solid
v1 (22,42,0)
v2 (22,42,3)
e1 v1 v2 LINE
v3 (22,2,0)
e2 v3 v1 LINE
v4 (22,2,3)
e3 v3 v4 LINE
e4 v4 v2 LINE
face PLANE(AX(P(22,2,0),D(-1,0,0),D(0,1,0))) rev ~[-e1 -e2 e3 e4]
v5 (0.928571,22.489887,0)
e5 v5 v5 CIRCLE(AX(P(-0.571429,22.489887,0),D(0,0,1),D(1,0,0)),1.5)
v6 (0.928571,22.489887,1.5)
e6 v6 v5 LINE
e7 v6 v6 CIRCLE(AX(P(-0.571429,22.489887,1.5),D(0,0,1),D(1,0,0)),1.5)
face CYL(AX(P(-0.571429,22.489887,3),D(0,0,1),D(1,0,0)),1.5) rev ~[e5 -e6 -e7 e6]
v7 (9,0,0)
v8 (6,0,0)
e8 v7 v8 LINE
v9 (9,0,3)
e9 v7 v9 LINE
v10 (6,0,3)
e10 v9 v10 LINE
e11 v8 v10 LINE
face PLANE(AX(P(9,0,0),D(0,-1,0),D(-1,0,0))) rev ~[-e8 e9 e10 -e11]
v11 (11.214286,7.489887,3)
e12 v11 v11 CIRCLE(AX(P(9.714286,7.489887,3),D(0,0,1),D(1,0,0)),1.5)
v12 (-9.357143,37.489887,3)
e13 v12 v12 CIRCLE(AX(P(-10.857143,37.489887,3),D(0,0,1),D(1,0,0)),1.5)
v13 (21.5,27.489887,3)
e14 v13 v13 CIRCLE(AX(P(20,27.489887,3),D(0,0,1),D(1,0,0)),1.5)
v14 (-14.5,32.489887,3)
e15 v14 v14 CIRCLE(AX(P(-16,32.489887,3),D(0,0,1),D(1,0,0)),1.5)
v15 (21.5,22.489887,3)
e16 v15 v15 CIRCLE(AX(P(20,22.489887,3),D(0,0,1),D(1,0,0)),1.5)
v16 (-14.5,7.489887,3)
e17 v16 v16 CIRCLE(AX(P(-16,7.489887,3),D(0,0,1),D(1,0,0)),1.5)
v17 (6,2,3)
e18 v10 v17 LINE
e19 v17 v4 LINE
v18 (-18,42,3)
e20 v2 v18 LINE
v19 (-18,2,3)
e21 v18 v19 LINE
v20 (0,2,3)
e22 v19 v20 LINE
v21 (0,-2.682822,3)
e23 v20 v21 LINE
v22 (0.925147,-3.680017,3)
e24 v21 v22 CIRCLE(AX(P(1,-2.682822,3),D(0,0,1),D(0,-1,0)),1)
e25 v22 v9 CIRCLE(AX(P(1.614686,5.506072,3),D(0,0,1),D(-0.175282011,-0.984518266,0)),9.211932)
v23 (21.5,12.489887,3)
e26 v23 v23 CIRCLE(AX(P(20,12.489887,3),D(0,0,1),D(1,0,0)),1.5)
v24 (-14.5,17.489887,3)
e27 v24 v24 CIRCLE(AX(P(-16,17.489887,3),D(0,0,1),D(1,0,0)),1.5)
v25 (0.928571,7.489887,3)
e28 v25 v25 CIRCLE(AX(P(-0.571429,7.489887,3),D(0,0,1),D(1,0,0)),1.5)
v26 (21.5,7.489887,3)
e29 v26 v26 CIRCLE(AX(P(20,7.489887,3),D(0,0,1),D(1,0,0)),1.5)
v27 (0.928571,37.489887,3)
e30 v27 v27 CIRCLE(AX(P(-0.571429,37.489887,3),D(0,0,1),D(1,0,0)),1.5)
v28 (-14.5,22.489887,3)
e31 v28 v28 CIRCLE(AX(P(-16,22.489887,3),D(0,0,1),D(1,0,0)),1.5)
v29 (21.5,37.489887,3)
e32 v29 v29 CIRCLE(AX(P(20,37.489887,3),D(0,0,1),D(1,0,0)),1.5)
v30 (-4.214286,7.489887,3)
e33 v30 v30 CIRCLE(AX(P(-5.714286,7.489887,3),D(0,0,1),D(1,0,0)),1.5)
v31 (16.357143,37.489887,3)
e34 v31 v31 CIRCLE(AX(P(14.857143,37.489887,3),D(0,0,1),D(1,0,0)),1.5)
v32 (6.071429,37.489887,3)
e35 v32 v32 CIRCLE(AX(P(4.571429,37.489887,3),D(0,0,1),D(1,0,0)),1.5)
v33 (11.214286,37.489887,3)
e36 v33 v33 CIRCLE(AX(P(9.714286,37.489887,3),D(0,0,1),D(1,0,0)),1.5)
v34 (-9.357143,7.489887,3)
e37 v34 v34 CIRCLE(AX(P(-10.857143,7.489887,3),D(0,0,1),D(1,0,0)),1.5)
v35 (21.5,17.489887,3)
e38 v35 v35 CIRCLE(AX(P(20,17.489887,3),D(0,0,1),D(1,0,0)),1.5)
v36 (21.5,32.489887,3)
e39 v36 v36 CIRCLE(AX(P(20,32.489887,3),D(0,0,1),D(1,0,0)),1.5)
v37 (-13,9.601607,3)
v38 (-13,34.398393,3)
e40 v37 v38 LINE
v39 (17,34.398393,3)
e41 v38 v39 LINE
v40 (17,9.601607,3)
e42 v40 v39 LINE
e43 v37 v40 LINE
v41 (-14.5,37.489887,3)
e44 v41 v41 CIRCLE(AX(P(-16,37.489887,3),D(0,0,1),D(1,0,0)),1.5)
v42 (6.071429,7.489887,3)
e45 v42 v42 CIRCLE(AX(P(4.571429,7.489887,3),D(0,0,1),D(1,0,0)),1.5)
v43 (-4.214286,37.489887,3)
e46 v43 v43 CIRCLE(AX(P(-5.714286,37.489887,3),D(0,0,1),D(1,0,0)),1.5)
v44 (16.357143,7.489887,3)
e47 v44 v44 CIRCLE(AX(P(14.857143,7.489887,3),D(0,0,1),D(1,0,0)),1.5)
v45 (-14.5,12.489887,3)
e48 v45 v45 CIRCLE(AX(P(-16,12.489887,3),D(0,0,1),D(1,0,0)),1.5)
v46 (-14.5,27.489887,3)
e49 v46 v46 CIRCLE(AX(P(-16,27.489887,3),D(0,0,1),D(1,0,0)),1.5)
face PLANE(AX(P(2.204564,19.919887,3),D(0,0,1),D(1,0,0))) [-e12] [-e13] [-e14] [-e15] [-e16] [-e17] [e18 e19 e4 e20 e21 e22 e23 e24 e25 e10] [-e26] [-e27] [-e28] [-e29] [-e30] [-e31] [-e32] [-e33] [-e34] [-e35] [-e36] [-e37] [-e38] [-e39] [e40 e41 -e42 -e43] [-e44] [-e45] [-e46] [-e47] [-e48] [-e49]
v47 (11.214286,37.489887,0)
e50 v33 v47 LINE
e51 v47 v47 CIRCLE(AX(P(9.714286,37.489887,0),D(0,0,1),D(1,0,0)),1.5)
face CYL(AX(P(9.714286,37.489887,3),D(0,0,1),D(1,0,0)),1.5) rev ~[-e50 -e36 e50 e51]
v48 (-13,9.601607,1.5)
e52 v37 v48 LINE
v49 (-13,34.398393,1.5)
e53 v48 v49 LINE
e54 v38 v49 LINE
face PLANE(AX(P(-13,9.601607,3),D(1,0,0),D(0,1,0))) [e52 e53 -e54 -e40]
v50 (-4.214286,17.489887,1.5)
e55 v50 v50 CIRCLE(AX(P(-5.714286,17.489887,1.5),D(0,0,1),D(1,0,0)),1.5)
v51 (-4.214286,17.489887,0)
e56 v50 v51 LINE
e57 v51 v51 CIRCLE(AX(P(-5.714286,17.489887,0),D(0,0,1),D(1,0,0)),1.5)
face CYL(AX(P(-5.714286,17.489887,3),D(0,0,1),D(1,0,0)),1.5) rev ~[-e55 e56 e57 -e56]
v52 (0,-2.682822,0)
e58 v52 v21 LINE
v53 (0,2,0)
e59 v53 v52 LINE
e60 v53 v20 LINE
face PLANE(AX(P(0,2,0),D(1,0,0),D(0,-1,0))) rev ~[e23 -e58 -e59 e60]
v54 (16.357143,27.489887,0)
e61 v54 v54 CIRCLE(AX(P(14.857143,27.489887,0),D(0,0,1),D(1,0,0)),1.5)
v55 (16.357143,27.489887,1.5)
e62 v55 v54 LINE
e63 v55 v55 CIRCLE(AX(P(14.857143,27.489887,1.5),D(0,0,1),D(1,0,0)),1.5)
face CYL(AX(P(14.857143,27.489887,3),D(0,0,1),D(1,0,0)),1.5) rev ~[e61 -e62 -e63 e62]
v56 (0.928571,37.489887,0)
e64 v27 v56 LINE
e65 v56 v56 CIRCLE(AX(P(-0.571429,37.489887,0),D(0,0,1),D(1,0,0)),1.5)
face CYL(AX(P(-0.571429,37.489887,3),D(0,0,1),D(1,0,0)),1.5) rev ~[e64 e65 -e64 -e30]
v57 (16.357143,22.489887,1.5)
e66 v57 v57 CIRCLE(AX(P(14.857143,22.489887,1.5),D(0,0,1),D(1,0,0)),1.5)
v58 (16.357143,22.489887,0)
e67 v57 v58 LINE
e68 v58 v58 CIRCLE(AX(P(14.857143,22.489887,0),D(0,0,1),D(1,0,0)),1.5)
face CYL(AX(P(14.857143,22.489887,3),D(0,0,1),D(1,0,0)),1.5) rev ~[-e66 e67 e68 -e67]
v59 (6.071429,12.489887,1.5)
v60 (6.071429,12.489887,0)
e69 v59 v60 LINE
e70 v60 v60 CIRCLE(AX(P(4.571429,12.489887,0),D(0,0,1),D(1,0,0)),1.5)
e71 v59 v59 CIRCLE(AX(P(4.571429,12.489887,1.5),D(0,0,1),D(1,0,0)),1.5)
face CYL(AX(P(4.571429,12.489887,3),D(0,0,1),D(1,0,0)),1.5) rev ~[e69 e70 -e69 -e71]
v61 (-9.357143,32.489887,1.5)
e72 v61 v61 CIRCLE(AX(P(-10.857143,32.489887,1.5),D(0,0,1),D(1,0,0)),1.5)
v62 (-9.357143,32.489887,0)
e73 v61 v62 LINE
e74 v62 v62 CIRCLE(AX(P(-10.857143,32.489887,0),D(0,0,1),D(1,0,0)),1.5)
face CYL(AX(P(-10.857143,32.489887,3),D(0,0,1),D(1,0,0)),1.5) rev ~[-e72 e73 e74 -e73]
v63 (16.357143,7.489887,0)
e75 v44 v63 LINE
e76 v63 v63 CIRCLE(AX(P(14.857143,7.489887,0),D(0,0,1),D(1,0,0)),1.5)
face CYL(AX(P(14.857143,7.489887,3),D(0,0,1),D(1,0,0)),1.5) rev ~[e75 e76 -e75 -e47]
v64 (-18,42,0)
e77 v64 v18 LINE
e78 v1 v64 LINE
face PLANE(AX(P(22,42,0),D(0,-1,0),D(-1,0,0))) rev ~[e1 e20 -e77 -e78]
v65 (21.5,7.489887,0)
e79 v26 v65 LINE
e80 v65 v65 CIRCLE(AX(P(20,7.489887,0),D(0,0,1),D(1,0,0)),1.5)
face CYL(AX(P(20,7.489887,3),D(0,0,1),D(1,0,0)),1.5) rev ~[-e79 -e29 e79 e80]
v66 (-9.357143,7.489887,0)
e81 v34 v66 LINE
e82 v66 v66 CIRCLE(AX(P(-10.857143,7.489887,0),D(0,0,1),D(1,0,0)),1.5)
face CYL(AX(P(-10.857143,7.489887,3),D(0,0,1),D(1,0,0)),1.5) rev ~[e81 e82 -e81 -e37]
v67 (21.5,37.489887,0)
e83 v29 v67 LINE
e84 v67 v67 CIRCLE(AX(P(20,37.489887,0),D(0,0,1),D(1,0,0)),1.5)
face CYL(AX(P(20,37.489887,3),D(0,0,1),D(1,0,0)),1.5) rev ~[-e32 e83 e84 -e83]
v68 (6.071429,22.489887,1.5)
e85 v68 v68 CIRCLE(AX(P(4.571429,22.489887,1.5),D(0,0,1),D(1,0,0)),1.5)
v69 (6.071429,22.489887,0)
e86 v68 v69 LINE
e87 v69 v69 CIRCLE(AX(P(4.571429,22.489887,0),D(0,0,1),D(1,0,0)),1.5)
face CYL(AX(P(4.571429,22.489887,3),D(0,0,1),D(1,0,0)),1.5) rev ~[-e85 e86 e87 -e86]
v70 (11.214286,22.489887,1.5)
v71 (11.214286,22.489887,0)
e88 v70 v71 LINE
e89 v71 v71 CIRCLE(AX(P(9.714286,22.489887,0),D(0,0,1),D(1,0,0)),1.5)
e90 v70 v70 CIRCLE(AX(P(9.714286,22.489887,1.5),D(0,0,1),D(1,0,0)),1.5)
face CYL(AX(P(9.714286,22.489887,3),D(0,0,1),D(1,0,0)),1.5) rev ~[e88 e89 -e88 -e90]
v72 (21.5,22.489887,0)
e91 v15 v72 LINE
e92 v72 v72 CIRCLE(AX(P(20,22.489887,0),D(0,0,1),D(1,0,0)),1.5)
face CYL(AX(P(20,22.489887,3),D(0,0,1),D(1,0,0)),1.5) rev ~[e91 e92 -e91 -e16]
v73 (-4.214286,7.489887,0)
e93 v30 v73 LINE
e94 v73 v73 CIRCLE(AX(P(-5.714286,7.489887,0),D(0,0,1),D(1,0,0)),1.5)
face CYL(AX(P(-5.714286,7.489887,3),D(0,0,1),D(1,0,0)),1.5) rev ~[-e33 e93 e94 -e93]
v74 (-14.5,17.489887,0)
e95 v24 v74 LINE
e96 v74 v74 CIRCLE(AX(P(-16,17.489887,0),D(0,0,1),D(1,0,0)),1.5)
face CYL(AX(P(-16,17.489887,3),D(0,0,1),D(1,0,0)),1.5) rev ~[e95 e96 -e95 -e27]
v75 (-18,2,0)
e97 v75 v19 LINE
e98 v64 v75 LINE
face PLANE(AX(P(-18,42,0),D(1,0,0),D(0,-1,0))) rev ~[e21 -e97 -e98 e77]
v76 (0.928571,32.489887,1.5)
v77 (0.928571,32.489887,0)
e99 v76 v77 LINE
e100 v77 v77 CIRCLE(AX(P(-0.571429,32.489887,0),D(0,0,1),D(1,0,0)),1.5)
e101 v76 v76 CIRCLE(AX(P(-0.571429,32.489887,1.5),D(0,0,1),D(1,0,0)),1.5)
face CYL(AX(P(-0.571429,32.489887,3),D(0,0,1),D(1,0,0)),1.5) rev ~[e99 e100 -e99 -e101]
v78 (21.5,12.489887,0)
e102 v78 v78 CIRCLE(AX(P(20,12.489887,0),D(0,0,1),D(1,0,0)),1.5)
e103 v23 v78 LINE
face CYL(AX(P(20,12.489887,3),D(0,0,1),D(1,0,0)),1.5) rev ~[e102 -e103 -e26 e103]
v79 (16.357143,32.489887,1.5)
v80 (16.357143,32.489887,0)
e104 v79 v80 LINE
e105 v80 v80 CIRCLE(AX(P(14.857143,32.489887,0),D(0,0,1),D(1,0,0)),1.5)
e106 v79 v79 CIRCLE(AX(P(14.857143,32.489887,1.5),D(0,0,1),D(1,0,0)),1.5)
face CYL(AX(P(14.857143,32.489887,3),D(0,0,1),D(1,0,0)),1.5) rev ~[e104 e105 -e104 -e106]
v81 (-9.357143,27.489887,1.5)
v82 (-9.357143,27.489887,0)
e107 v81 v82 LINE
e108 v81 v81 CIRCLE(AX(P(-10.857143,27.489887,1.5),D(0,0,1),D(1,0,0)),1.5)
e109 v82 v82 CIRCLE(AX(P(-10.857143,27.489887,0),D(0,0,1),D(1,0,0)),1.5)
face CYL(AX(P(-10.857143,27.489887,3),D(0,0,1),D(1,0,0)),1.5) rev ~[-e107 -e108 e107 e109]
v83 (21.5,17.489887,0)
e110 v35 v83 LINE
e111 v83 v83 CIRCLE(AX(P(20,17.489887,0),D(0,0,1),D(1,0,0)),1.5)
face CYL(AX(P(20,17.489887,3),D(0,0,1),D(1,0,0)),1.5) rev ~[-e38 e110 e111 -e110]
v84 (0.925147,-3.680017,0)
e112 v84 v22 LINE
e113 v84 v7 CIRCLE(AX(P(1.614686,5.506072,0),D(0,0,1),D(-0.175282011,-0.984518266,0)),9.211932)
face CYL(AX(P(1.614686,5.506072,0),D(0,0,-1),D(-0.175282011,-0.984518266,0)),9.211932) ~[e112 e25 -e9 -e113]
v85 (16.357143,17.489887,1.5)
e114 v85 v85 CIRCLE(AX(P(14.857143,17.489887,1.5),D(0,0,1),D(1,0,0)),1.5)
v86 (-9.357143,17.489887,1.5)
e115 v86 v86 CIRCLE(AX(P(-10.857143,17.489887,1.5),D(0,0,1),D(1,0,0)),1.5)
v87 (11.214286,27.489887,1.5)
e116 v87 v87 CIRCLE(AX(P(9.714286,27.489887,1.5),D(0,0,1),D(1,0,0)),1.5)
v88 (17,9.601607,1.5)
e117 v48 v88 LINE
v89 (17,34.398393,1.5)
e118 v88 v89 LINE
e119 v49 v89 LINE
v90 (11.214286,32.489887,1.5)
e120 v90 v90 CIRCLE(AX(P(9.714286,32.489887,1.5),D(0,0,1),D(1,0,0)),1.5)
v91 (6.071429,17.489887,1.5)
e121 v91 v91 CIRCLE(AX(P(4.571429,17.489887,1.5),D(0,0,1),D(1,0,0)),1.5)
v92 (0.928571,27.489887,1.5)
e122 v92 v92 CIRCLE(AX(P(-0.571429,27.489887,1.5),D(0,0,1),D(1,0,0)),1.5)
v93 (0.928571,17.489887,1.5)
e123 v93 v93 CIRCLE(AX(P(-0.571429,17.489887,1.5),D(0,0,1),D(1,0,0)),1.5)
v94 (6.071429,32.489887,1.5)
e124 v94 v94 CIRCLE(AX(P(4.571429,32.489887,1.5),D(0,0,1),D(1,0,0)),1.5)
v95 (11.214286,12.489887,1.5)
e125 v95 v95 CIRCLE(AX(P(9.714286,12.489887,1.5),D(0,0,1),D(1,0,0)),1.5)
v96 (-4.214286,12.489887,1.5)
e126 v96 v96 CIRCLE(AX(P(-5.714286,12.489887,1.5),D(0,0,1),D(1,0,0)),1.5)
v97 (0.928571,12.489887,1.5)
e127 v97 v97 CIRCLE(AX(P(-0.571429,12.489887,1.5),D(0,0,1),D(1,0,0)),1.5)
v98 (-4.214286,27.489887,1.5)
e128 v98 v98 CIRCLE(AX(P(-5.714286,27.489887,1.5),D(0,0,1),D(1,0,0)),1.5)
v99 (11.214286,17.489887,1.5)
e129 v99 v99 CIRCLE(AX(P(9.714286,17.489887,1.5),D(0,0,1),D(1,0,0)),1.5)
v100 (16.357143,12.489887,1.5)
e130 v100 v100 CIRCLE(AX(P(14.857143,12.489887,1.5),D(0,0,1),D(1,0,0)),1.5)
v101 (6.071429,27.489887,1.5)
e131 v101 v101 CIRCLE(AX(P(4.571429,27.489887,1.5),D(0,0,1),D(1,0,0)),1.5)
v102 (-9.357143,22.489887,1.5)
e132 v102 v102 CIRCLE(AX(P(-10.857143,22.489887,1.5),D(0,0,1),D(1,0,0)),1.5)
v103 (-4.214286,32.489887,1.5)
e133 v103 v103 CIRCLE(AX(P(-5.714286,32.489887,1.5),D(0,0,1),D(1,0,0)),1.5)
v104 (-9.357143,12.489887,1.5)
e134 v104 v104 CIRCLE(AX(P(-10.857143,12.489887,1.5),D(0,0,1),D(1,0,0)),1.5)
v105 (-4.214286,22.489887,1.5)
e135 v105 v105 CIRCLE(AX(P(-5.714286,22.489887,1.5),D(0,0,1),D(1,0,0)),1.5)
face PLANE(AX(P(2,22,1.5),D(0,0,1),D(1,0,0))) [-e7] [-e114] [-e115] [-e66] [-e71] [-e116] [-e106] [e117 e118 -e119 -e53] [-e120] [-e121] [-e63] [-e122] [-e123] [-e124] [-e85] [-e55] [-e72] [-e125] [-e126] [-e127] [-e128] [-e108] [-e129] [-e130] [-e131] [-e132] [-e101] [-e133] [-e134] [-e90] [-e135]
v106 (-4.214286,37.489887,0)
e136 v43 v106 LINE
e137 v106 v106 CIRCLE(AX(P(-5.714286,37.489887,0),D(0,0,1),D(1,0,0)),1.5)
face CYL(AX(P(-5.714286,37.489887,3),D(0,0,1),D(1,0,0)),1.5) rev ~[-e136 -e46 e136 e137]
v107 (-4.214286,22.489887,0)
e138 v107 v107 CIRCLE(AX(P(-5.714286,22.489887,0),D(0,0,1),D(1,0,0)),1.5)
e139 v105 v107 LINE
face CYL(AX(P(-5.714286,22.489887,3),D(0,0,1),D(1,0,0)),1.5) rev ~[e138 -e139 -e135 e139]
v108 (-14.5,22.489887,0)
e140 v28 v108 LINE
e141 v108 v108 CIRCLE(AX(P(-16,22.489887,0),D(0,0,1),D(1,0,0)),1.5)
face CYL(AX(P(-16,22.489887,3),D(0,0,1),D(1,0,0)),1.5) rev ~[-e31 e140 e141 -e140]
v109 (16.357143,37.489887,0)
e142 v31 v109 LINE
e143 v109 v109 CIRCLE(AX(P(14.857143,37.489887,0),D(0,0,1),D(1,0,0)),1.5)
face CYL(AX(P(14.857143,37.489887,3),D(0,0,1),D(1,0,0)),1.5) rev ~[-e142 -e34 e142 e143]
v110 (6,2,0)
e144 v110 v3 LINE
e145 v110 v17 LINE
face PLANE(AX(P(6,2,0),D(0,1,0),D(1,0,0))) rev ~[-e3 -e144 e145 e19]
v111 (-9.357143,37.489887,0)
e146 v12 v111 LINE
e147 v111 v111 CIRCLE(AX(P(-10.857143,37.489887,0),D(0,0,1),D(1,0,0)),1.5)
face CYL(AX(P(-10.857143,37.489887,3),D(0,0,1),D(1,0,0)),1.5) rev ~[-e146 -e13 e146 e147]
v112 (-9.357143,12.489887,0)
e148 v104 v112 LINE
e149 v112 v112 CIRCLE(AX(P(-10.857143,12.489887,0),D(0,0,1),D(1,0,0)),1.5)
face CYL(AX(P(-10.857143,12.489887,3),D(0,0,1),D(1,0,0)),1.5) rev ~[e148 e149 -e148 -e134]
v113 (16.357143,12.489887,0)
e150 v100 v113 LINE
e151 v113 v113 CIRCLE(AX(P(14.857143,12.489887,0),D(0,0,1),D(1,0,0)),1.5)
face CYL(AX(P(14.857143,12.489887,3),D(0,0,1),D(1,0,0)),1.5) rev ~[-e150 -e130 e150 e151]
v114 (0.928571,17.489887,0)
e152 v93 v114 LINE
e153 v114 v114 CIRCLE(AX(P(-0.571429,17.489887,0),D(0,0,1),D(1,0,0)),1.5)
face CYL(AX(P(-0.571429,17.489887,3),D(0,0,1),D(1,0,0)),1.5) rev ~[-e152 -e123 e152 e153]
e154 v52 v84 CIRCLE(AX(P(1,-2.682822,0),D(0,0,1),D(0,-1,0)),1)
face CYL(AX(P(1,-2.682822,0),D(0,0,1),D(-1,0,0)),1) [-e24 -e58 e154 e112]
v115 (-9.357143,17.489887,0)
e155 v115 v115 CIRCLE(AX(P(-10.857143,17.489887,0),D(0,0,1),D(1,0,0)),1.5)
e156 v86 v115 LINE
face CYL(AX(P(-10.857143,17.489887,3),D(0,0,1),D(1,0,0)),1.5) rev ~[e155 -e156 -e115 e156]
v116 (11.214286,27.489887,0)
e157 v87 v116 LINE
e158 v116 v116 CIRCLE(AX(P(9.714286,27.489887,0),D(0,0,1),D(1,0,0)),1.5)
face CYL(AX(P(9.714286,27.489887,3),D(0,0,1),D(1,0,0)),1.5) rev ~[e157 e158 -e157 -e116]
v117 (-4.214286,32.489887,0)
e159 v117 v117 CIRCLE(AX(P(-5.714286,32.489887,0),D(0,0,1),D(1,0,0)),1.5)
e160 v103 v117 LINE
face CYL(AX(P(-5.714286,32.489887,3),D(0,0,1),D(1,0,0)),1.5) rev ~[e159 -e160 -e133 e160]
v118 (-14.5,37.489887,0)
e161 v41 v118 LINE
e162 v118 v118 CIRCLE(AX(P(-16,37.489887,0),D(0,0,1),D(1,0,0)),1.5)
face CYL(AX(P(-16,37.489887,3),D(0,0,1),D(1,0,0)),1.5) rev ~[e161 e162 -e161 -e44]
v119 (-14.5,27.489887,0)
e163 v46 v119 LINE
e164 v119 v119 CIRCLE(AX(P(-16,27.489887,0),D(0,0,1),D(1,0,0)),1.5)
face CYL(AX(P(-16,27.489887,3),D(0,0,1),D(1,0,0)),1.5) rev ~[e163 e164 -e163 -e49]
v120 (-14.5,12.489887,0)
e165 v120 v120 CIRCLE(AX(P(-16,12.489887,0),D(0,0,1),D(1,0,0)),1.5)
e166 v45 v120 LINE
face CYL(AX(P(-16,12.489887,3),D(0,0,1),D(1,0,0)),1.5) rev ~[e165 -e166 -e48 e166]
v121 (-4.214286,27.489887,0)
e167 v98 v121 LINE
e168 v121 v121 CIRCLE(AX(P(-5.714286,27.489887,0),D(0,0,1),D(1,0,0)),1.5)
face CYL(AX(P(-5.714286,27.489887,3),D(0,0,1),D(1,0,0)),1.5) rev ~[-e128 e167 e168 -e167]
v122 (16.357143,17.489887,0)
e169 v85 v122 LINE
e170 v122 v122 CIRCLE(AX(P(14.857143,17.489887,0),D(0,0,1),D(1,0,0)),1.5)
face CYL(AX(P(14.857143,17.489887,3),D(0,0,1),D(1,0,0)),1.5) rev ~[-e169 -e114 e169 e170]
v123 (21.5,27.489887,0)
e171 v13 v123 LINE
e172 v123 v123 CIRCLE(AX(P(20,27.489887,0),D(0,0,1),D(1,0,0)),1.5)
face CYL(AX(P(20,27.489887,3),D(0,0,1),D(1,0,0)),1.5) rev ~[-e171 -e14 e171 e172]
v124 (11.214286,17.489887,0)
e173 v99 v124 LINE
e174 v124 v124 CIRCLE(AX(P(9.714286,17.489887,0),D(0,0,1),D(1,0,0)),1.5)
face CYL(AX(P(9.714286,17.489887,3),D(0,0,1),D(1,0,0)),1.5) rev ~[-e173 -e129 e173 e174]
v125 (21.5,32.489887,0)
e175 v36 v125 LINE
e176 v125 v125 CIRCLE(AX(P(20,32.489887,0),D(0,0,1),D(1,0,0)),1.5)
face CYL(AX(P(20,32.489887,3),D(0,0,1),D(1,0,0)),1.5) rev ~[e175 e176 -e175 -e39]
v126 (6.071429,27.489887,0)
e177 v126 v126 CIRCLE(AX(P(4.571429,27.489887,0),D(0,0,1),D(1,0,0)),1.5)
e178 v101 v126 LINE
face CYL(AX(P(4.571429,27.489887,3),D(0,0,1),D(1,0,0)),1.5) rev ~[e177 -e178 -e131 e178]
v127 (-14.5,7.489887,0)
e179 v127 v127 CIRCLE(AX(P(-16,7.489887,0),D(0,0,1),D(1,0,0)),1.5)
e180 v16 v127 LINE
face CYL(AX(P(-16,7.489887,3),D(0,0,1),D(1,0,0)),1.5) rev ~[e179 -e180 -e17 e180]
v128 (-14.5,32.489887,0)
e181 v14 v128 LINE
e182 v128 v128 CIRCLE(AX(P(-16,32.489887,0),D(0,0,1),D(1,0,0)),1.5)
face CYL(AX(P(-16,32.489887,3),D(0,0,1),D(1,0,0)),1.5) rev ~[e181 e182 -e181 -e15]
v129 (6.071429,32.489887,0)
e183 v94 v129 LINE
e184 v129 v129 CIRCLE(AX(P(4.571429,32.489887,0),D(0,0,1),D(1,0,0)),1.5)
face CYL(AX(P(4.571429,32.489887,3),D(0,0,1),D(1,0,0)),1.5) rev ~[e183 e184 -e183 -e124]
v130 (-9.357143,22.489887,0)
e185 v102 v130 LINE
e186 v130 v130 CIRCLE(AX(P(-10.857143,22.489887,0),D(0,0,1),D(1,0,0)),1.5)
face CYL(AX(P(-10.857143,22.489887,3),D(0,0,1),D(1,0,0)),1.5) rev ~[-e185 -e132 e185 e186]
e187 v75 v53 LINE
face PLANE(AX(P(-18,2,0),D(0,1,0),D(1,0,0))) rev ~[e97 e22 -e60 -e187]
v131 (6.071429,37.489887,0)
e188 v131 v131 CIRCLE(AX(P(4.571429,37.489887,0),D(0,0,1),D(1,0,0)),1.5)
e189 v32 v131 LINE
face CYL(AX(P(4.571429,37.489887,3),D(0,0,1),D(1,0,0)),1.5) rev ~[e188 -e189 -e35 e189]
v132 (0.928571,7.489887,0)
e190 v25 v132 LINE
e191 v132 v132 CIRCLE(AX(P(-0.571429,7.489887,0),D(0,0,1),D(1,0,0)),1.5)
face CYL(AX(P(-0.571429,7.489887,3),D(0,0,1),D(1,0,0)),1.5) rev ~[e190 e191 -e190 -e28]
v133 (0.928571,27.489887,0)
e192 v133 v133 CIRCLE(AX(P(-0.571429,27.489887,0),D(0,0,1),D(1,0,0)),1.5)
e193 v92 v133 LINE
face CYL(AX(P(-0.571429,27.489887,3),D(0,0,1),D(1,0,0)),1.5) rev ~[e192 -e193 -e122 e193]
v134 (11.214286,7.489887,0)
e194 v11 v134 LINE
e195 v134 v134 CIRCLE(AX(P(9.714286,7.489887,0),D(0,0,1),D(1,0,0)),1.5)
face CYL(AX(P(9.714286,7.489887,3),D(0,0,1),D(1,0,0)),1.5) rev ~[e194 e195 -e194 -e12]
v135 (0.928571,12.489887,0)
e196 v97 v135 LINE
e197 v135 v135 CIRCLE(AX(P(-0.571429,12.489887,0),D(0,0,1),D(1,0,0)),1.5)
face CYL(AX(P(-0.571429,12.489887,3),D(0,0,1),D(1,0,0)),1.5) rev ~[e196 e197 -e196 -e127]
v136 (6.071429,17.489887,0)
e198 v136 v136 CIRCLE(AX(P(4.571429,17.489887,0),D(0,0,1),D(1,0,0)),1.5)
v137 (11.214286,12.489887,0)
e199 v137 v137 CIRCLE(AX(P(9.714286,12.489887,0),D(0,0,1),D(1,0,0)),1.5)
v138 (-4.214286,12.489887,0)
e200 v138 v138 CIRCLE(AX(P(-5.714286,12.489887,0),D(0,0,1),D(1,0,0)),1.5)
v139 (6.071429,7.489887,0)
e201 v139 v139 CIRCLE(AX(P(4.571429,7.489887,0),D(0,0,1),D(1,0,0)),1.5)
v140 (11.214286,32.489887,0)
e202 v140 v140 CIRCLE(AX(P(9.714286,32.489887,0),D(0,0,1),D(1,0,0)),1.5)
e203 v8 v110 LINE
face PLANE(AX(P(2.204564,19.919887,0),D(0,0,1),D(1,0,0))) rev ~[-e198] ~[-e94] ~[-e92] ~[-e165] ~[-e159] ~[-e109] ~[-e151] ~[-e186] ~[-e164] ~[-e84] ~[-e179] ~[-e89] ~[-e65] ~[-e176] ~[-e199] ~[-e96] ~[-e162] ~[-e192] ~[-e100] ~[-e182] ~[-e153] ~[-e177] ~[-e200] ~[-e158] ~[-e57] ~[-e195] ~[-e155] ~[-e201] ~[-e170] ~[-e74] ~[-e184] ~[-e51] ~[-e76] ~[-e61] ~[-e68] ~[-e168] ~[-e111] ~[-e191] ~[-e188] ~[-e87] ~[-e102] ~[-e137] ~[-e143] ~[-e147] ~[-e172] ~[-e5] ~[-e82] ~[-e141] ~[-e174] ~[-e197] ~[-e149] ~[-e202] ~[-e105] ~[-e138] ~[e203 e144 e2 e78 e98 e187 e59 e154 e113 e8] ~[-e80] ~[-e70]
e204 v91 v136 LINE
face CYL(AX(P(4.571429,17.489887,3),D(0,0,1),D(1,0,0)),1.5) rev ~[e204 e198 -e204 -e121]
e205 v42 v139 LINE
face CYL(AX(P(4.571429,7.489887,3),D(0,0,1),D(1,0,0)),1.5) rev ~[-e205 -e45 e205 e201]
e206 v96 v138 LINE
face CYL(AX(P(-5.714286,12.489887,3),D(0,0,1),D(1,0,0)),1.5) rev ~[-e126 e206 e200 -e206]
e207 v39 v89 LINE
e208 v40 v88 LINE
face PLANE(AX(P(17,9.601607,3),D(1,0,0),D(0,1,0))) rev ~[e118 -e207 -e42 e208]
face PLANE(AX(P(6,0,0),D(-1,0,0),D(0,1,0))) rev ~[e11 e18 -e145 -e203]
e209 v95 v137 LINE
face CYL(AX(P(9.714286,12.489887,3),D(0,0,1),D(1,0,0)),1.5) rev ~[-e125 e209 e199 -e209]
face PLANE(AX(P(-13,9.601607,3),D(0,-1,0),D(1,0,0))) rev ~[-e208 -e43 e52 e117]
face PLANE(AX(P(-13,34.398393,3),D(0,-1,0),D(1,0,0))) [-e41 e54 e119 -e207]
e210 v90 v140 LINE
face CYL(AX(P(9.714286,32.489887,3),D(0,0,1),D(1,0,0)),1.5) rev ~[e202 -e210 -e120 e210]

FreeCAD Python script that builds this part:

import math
import FreeCAD as App
import Part
import Sketcher


def edges_at(feature, points):
    """Names of the edges that pass closest to the given points."""
    edges = feature.Shape.Edges
    near = lambda p: min(range(len(edges)), key=lambda i: edges[i].distToShape(Part.Vertex(*p))[0])
    return sorted({f"Edge{near(p) + 1}" for p in points})

doc = App.newDocument("Part")
body = doc.addObject("PartDesign::Body", "Body")

# Sketch on XY plane
sketch1 = body.newObject("Sketcher::SketchObject", "Sketch")
sketch1.AttachmentSupport = (doc.getObject("XY_Plane"), [""])
sketch1.MapMode = "FlatFace"
sketch1.addGeometry(Part.LineSegment(App.Vector(-18, 2, 0), App.Vector(0, 2, 0)), False)
sketch1.addGeometry(Part.LineSegment(App.Vector(0, 2, 0), App.Vector(0, -3.6, 0)), False)
sketch1.addGeometry(Part.ArcOfCircle(Part.Circle(App.Vector(1.6, 5.5, 0), App.Vector(0, 0, 1), 9.2), math.radians(-100), math.radians(-37)), False)
sketch1.addGeometry(Part.LineSegment(App.Vector(9, 0, 0), App.Vector(6, 0, 0)), False)
sketch1.addGeometry(Part.LineSegment(App.Vector(6, 0, 0), App.Vector(6, 2, 0)), False)
sketch1.addGeometry(Part.LineSegment(App.Vector(6, 2, 0), App.Vector(22, 2, 0)), False)
sketch1.addGeometry(Part.LineSegment(App.Vector(22, 2, 0), App.Vector(22, 42, 0)), False)
sketch1.addGeometry(Part.LineSegment(App.Vector(22, 42, 0), App.Vector(-18, 42, 0)), False)
sketch1.addGeometry(Part.LineSegment(App.Vector(-18, 42, 0), App.Vector(-18, 2, 0)), False)
sketch1.addConstraint(Sketcher.Constraint("Coincident", 0, 2, 1, 1))
sketch1.addConstraint(Sketcher.Constraint("Coincident", 1, 2, 2, 1))
sketch1.addConstraint(Sketcher.Constraint("Coincident", 2, 2, 3, 1))
sketch1.addConstraint(Sketcher.Constraint("Coincident", 3, 2, 4, 1))
sketch1.addConstraint(Sketcher.Constraint("Coincident", 4, 2, 5, 1))
sketch1.addConstraint(Sketcher.Constraint("Coincident", 5, 2, 6, 1))
sketch1.addConstraint(Sketcher.Constraint("Coincident", 6, 2, 7, 1))
sketch1.addConstraint(Sketcher.Constraint("Coincident", 7, 2, 8, 1))
sketch1.addConstraint(Sketcher.Constraint("Coincident", 8, 2, 0, 1))
sketch1.addConstraint(Sketcher.Constraint("Horizontal", 0))
sketch1.addConstraint(Sketcher.Constraint("Vertical", 1))
sketch1.addConstraint(Sketcher.Constraint("Horizontal", 3))
sketch1.addConstraint(Sketcher.Constraint("Vertical", 4))
sketch1.addConstraint(Sketcher.Constraint("Horizontal", 5))
sketch1.addConstraint(Sketcher.Constraint("Vertical", 6))
sketch1.addConstraint(Sketcher.Constraint("Horizontal", 7))
sketch1.addConstraint(Sketcher.Constraint("Vertical", 8))
sketch1.addConstraint(Sketcher.Constraint("PointOnObject", 0, 2, -2))
sketch1.addConstraint(Sketcher.Constraint("PointOnObject", 2, 2, -1))
sketch1.addConstraint(Sketcher.Constraint("Horizontal", 0, 2, 4, 2))
sketch1.addConstraint(Sketcher.Constraint("Equal", 7, 6))
sketch1.addConstraint(Sketcher.Constraint("DistanceX", 0, 1, 0, 2, 18.0))
sketch1.addConstraint(Sketcher.Constraint("DistanceX", 3, 2, 3, 1, 3.0))
sketch1.addConstraint(Sketcher.Constraint("DistanceX", 5, 1, 5, 2, 16.0))
sketch1.addConstraint(Sketcher.Constraint("DistanceX", 7, 2, 7, 1, 40.0))
sketch1.addConstraint(Sketcher.Constraint("DistanceY", 4, 1, 4, 2, 2.0))
sketch1.addConstraint(Sketcher.Constraint("Radius", 2, 9.211932))
sketch1.addConstraint(Sketcher.Constraint("DistanceY", 1, 2, 1, 1, 5.563244))
pad1 = body.newObject("PartDesign::Pad", "Pad")
pad1.Profile = sketch1
pad1.Length = 3

# Sketch on XY plane
sketch2 = body.newObject("Sketcher::SketchObject", "Sketch001")
sketch2.AttachmentSupport = (doc.getObject("XY_Plane"), [""])
sketch2.MapMode = "FlatFace"
sketch2.AttachmentOffset = App.Placement(App.Vector(0, 0, 3), App.Rotation())
sketch2.addGeometry(Part.Circle(App.Vector(-16, 37.5, 0), App.Vector(0, 0, 1), 1.5), False)
sketch2.addGeometry(Part.Circle(App.Vector(-10.9, 37.5, 0), App.Vector(0, 0, 1), 1.5), False)
sketch2.addGeometry(Part.Circle(App.Vector(-5.7, 37.5, 0), App.Vector(0, 0, 1), 1.5), False)
sketch2.addGeometry(Part.Circle(App.Vector(-0.6, 37.5, 0), App.Vector(0, 0, 1), 1.5), False)
sketch2.addGeometry(Part.Circle(App.Vector(4.6, 37.5, 0), App.Vector(0, 0, 1), 1.5), False)
sketch2.addGeometry(Part.Circle(App.Vector(9.7, 37.5, 0), App.Vector(0, 0, 1), 1.5), False)
sketch2.addGeometry(Part.Circle(App.Vector(14.9, 37.5, 0), App.Vector(0, 0, 1), 1.5), False)
sketch2.addGeometry(Part.Circle(App.Vector(20, 37.5, 0), App.Vector(0, 0, 1), 1.5), False)
sketch2.addGeometry(Part.Circle(App.Vector(-10.9, 32.5, 0), App.Vector(0, 0, 1), 1.5), False)
sketch2.addGeometry(Part.Circle(App.Vector(-5.7, 32.5, 0), App.Vector(0, 0, 1), 1.5), False)
sketch2.addGeometry(Part.Circle(App.Vector(-0.6, 32.5, 0), App.Vector(0, 0, 1), 1.5), False)
sketch2.addGeometry(Part.Circle(App.Vector(4.6, 32.5, 0), App.Vector(0, 0, 1), 1.5), False)
sketch2.addGeometry(Part.Circle(App.Vector(9.7, 32.5, 0), App.Vector(0, 0, 1), 1.5), False)
sketch2.addGeometry(Part.Circle(App.Vector(14.9, 32.5, 0), App.Vector(0, 0, 1), 1.5), False)
sketch2.addGeometry(Part.Circle(App.Vector(-10.9, 27.5, 0), App.Vector(0, 0, 1), 1.5), False)
sketch2.addGeometry(Part.Circle(App.Vector(-5.7, 27.5, 0), App.Vector(0, 0, 1), 1.5), False)
sketch2.addGeometry(Part.Circle(App.Vector(-0.6, 27.5, 0), App.Vector(0, 0, 1), 1.5), False)
sketch2.addGeometry(Part.Circle(App.Vector(4.6, 27.5, 0), App.Vector(0, 0, 1), 1.5), False)
sketch2.addGeometry(Part.Circle(App.Vector(9.7, 27.5, 0), App.Vector(0, 0, 1), 1.5), False)
sketch2.addGeometry(Part.Circle(App.Vector(14.9, 27.5, 0), App.Vector(0, 0, 1), 1.5), False)
sketch2.addGeometry(Part.Circle(App.Vector(-10.9, 22.5, 0), App.Vector(0, 0, 1), 1.5), False)
sketch2.addGeometry(Part.Circle(App.Vector(-5.7, 22.5, 0), App.Vector(0, 0, 1), 1.5), False)
sketch2.addGeometry(Part.Circle(App.Vector(-0.6, 22.5, 0), App.Vector(0, 0, 1), 1.5), False)
sketch2.addGeometry(Part.Circle(App.Vector(4.6, 22.5, 0), App.Vector(0, 0, 1), 1.5), False)
sketch2.addGeometry(Part.Circle(App.Vector(9.7, 22.5, 0), App.Vector(0, 0, 1), 1.5), False)
sketch2.addGeometry(Part.Circle(App.Vector(14.9, 22.5, 0), App.Vector(0, 0, 1), 1.5), False)
sketch2.addGeometry(Part.Circle(App.Vector(-10.9, 17.5, 0), App.Vector(0, 0, 1), 1.5), False)
sketch2.addGeometry(Part.Circle(App.Vector(-5.7, 17.5, 0), App.Vector(0, 0, 1), 1.5), False)
sketch2.addGeometry(Part.Circle(App.Vector(-0.6, 17.5, 0), App.Vector(0, 0, 1), 1.5), False)
sketch2.addGeometry(Part.Circle(App.Vector(4.6, 17.5, 0), App.Vector(0, 0, 1), 1.5), False)
sketch2.addGeometry(Part.Circle(App.Vector(9.7, 17.5, 0), App.Vector(0, 0, 1), 1.5), False)
sketch2.addGeometry(Part.Circle(App.Vector(14.9, 17.5, 0), App.Vector(0, 0, 1), 1.5), False)
sketch2.addGeometry(Part.Circle(App.Vector(-10.9, 12.5, 0), App.Vector(0, 0, 1), 1.5), False)
sketch2.addGeometry(Part.Circle(App.Vector(-5.7, 12.5, 0), App.Vector(0, 0, 1), 1.5), False)
sketch2.addGeometry(Part.Circle(App.Vector(-0.6, 12.5, 0), App.Vector(0, 0, 1), 1.5), False)
sketch2.addGeometry(Part.Circle(App.Vector(4.6, 12.5, 0), App.Vector(0, 0, 1), 1.5), False)
sketch2.addGeometry(Part.Circle(App.Vector(9.7, 12.5, 0), App.Vector(0, 0, 1), 1.5), False)
sketch2.addGeometry(Part.Circle(App.Vector(14.9, 12.5, 0), App.Vector(0, 0, 1), 1.5), False)
sketch2.addGeometry(Part.Circle(App.Vector(-10.9, 7.5, 0), App.Vector(0, 0, 1), 1.5), False)
sketch2.addGeometry(Part.Circle(App.Vector(-5.7, 7.5, 0), App.Vector(0, 0, 1), 1.5), False)
sketch2.addGeometry(Part.Circle(App.Vector(-0.6, 7.5, 0), App.Vector(0, 0, 1), 1.5), False)
sketch2.addGeometry(Part.Circle(App.Vector(4.6, 7.5, 0), App.Vector(0, 0, 1), 1.5), False)
sketch2.addGeometry(Part.Circle(App.Vector(9.7, 7.5, 0), App.Vector(0, 0, 1), 1.5), False)
sketch2.addGeometry(Part.Circle(App.Vector(14.9, 7.5, 0), App.Vector(0, 0, 1), 1.5), False)
sketch2.addGeometry(Part.Circle(App.Vector(-16, 32.5, 0), App.Vector(0, 0, 1), 1.5), False)
sketch2.addGeometry(Part.Circle(App.Vector(-16, 27.5, 0), App.Vector(0, 0, 1), 1.5), False)
sketch2.addGeometry(Part.Circle(App.Vector(-16, 22.5, 0), App.Vector(0, 0, 1), 1.5), False)
sketch2.addGeometry(Part.Circle(App.Vector(-16, 17.5, 0), App.Vector(0, 0, 1), 1.5), False)
sketch2.addGeometry(Part.Circle(App.Vector(-16, 12.5, 0), App.Vector(0, 0, 1), 1.5), False)
sketch2.addGeometry(Part.Circle(App.Vector(-16, 7.5, 0), App.Vector(0, 0, 1), 1.5), False)
sketch2.addGeometry(Part.Circle(App.Vector(20, 32.5, 0), App.Vector(0, 0, 1), 1.5), False)
sketch2.addGeometry(Part.Circle(App.Vector(20, 27.5, 0), App.Vector(0, 0, 1), 1.5), False)
sketch2.addGeometry(Part.Circle(App.Vector(20, 22.5, 0), App.Vector(0, 0, 1), 1.5), False)
sketch2.addGeometry(Part.Circle(App.Vector(20, 17.5, 0), App.Vector(0, 0, 1), 1.5), False)
sketch2.addGeometry(Part.Circle(App.Vector(20, 12.5, 0), App.Vector(0, 0, 1), 1.5), False)
sketch2.addGeometry(Part.Circle(App.Vector(20, 7.5, 0), App.Vector(0, 0, 1), 1.5), False)
sketch2.addConstraint(Sketcher.Constraint("Equal", 0, 1))
sketch2.addConstraint(Sketcher.Constraint("Equal", 1, 2))
sketch2.addConstraint(Sketcher.Constraint("Equal", 2, 3))
sketch2.addConstraint(Sketcher.Constraint("Equal", 3, 4))
sketch2.addConstraint(Sketcher.Constraint("Equal", 4, 5))
sketch2.addConstraint(Sketcher.Constraint("Equal", 5, 6))
sketch2.addConstraint(Sketcher.Constraint("Equal", 6, 7))
sketch2.addConstraint(Sketcher.Constraint("Equal", 7, 8))
sketch2.addConstraint(Sketcher.Constraint("Equal", 8, 9))
sketch2.addConstraint(Sketcher.Constraint("Equal", 9, 10))
sketch2.addConstraint(Sketcher.Constraint("Equal", 10, 11))
sketch2.addConstraint(Sketcher.Constraint("Equal", 11, 12))
sketch2.addConstraint(Sketcher.Constraint("Equal", 12, 13))
sketch2.addConstraint(Sketcher.Constraint("Equal", 13, 14))
sketch2.addConstraint(Sketcher.Constraint("Equal", 14, 15))
sketch2.addConstraint(Sketcher.Constraint("Equal", 15, 16))
sketch2.addConstraint(Sketcher.Constraint("Equal", 16, 17))
sketch2.addConstraint(Sketcher.Constraint("Equal", 17, 18))
sketch2.addConstraint(Sketcher.Constraint("Equal", 18, 19))
sketch2.addConstraint(Sketcher.Constraint("Equal", 19, 20))
sketch2.addConstraint(Sketcher.Constraint("Equal", 20, 21))
sketch2.addConstraint(Sketcher.Constraint("Equal", 21, 22))
sketch2.addConstraint(Sketcher.Constraint("Equal", 22, 23))
sketch2.addConstraint(Sketcher.Constraint("Equal", 23, 24))
sketch2.addConstraint(Sketcher.Constraint("Equal", 24, 25))
sketch2.addConstraint(Sketcher.Constraint("Equal", 25, 26))
sketch2.addConstraint(Sketcher.Constraint("Equal", 26, 27))
sketch2.addConstraint(Sketcher.Constraint("Equal", 27, 28))
sketch2.addConstraint(Sketcher.Constraint("Equal", 28, 29))
sketch2.addConstraint(Sketcher.Constraint("Equal", 29, 30))
sketch2.addConstraint(Sketcher.Constraint("Equal", 30, 31))
sketch2.addConstraint(Sketcher.Constraint("Equal", 31, 32))
sketch2.addConstraint(Sketcher.Constraint("Equal", 32, 33))
sketch2.addConstraint(Sketcher.Constraint("Equal", 33, 34))
sketch2.addConstraint(Sketcher.Constraint("Equal", 34, 35))
sketch2.addConstraint(Sketcher.Constraint("Equal", 35, 36))
sketch2.addConstraint(Sketcher.Constraint("Equal", 36, 37))
sketch2.addConstraint(Sketcher.Constraint("Equal", 37, 38))
sketch2.addConstraint(Sketcher.Constraint("Equal", 38, 39))
sketch2.addConstraint(Sketcher.Constraint("Equal", 39, 40))
sketch2.addConstraint(Sketcher.Constraint("Equal", 40, 41))
sketch2.addConstraint(Sketcher.Constraint("Equal", 41, 42))
sketch2.addConstraint(Sketcher.Constraint("Equal", 42, 43))
sketch2.addConstraint(Sketcher.Constraint("Equal", 43, 44))
sketch2.addConstraint(Sketcher.Constraint("Equal", 44, 45))
sketch2.addConstraint(Sketcher.Constraint("Equal", 45, 46))
sketch2.addConstraint(Sketcher.Constraint("Equal", 46, 47))
sketch2.addConstraint(Sketcher.Constraint("Equal", 47, 48))
sketch2.addConstraint(Sketcher.Constraint("Equal", 48, 49))
sketch2.addConstraint(Sketcher.Constraint("Equal", 49, 50))
sketch2.addConstraint(Sketcher.Constraint("Equal", 50, 51))
sketch2.addConstraint(Sketcher.Constraint("Equal", 51, 52))
sketch2.addConstraint(Sketcher.Constraint("Equal", 52, 53))
sketch2.addConstraint(Sketcher.Constraint("Equal", 53, 54))
sketch2.addConstraint(Sketcher.Constraint("Equal", 54, 55))
sketch2.addConstraint(Sketcher.Constraint("Horizontal", 0, 3, 1, 3))
sketch2.addConstraint(Sketcher.Constraint("Horizontal", 1, 3, 2, 3))
sketch2.addConstraint(Sketcher.Constraint("Horizontal", 2, 3, 3, 3))
sketch2.addConstraint(Sketcher.Constraint("Horizontal", 3, 3, 4, 3))
sketch2.addConstraint(Sketcher.Constraint("Horizontal", 4, 3, 5, 3))
sketch2.addConstraint(Sketcher.Constraint("Horizontal", 5, 3, 6, 3))
sketch2.addConstraint(Sketcher.Constraint("Horizontal", 6, 3, 7, 3))
sketch2.addConstraint(Sketcher.Constraint("Horizontal", 8, 3, 9, 3))
sketch2.addConstraint(Sketcher.Constraint("Horizontal", 9, 3, 10, 3))
sketch2.addConstraint(Sketcher.Constraint("Horizontal", 10, 3, 11, 3))
sketch2.addConstraint(Sketcher.Constraint("Horizontal", 11, 3, 12, 3))
sketch2.addConstraint(Sketcher.Constraint("Horizontal", 12, 3, 13, 3))
sketch2.addConstraint(Sketcher.Constraint("Horizontal", 14, 3, 15, 3))
sketch2.addConstraint(Sketcher.Constraint("Horizontal", 15, 3, 16, 3))
sketch2.addConstraint(Sketcher.Constraint("Horizontal", 16, 3, 17, 3))
sketch2.addConstraint(Sketcher.Constraint("Horizontal", 17, 3, 18, 3))
sketch2.addConstraint(Sketcher.Constraint("Horizontal", 18, 3, 19, 3))
sketch2.addConstraint(Sketcher.Constraint("Horizontal", 20, 3, 21, 3))
sketch2.addConstraint(Sketcher.Constraint("Horizontal", 21, 3, 22, 3))
sketch2.addConstraint(Sketcher.Constraint("Horizontal", 22, 3, 23, 3))
sketch2.addConstraint(Sketcher.Constraint("Horizontal", 23, 3, 24, 3))
sketch2.addConstraint(Sketcher.Constraint("Horizontal", 24, 3, 25, 3))
sketch2.addConstraint(Sketcher.Constraint("Horizontal", 26, 3, 27, 3))
sketch2.addConstraint(Sketcher.Constraint("Horizontal", 27, 3, 28, 3))
sketch2.addConstraint(Sketcher.Constraint("Horizontal", 28, 3, 29, 3))
sketch2.addConstraint(Sketcher.Constraint("Horizontal", 29, 3, 30, 3))
sketch2.addConstraint(Sketcher.Constraint("Horizontal", 30, 3, 31, 3))
sketch2.addConstraint(Sketcher.Constraint("Horizontal", 32, 3, 33, 3))
sketch2.addConstraint(Sketcher.Constraint("Horizontal", 33, 3, 34, 3))
sketch2.addConstraint(Sketcher.Constraint("Horizontal", 34, 3, 35, 3))
sketch2.addConstraint(Sketcher.Constraint("Horizontal", 35, 3, 36, 3))
sketch2.addConstraint(Sketcher.Constraint("Horizontal", 36, 3, 37, 3))
sketch2.addConstraint(Sketcher.Constraint("Horizontal", 38, 3, 39, 3))
sketch2.addConstraint(Sketcher.Constraint("Horizontal", 39, 3, 40, 3))
sketch2.addConstraint(Sketcher.Constraint("Horizontal", 40, 3, 41, 3))
sketch2.addConstraint(Sketcher.Constraint("Horizontal", 41, 3, 42, 3))
sketch2.addConstraint(Sketcher.Constraint("Horizontal", 42, 3, 43, 3))
sketch2.addConstraint(Sketcher.Constraint("Horizontal", 13, 3, 44, 3))
sketch2.addConstraint(Sketcher.Constraint("Horizontal", 19, 3, 45, 3))
sketch2.addConstraint(Sketcher.Constraint("Horizontal", 25, 3, 46, 3))
sketch2.addConstraint(Sketcher.Constraint("Horizontal", 31, 3, 47, 3))
sketch2.addConstraint(Sketcher.Constraint("Horizontal", 37, 3, 48, 3))
sketch2.addConstraint(Sketcher.Constraint("Horizontal", 43, 3, 49, 3))
sketch2.addConstraint(Sketcher.Constraint("Horizontal", 44, 3, 50, 3))
sketch2.addConstraint(Sketcher.Constraint("Horizontal", 45, 3, 51, 3))
sketch2.addConstraint(Sketcher.Constraint("Horizontal", 46, 3, 52, 3))
sketch2.addConstraint(Sketcher.Constraint("Horizontal", 47, 3, 53, 3))
sketch2.addConstraint(Sketcher.Constraint("Horizontal", 48, 3, 54, 3))
sketch2.addConstraint(Sketcher.Constraint("Horizontal", 49, 3, 55, 3))
sketch2.addConstraint(Sketcher.Constraint("Vertical", 1, 3, 8, 3))
sketch2.addConstraint(Sketcher.Constraint("Vertical", 2, 3, 9, 3))
sketch2.addConstraint(Sketcher.Constraint("Vertical", 3, 3, 10, 3))
sketch2.addConstraint(Sketcher.Constraint("Vertical", 4, 3, 11, 3))
sketch2.addConstraint(Sketcher.Constraint("Vertical", 5, 3, 12, 3))
sketch2.addConstraint(Sketcher.Constraint("Vertical", 6, 3, 13, 3))
sketch2.addConstraint(Sketcher.Constraint("Vertical", 8, 3, 14, 3))
sketch2.addConstraint(Sketcher.Constraint("Vertical", 9, 3, 15, 3))
sketch2.addConstraint(Sketcher.Constraint("Vertical", 10, 3, 16, 3))
sketch2.addConstraint(Sketcher.Constraint("Vertical", 11, 3, 17, 3))
sketch2.addConstraint(Sketcher.Constraint("Vertical", 12, 3, 18, 3))
sketch2.addConstraint(Sketcher.Constraint("Vertical", 13, 3, 19, 3))
sketch2.addConstraint(Sketcher.Constraint("Vertical", 14, 3, 20, 3))
sketch2.addConstraint(Sketcher.Constraint("Vertical", 15, 3, 21, 3))
sketch2.addConstraint(Sketcher.Constraint("Vertical", 16, 3, 22, 3))
sketch2.addConstraint(Sketcher.Constraint("Vertical", 17, 3, 23, 3))
sketch2.addConstraint(Sketcher.Constraint("Vertical", 18, 3, 24, 3))
sketch2.addConstraint(Sketcher.Constraint("Vertical", 19, 3, 25, 3))
sketch2.addConstraint(Sketcher.Constraint("Vertical", 20, 3, 26, 3))
sketch2.addConstraint(Sketcher.Constraint("Vertical", 21, 3, 27, 3))
sketch2.addConstraint(Sketcher.Constraint("Vertical", 22, 3, 28, 3))
sketch2.addConstraint(Sketcher.Constraint("Vertical", 23, 3, 29, 3))
sketch2.addConstraint(Sketcher.Constraint("Vertical", 24, 3, 30, 3))
sketch2.addConstraint(Sketcher.Constraint("Vertical", 25, 3, 31, 3))
sketch2.addConstraint(Sketcher.Constraint("Vertical", 26, 3, 32, 3))
sketch2.addConstraint(Sketcher.Constraint("Vertical", 27, 3, 33, 3))
sketch2.addConstraint(Sketcher.Constraint("Vertical", 28, 3, 34, 3))
sketch2.addConstraint(Sketcher.Constraint("Vertical", 29, 3, 35, 3))
sketch2.addConstraint(Sketcher.Constraint("Vertical", 30, 3, 36, 3))
sketch2.addConstraint(Sketcher.Constraint("Vertical", 31, 3, 37, 3))
sketch2.addConstraint(Sketcher.Constraint("Vertical", 32, 3, 38, 3))
sketch2.addConstraint(Sketcher.Constraint("Vertical", 33, 3, 39, 3))
sketch2.addConstraint(Sketcher.Constraint("Vertical", 34, 3, 40, 3))
sketch2.addConstraint(Sketcher.Constraint("Vertical", 35, 3, 41, 3))
sketch2.addConstraint(Sketcher.Constraint("Vertical", 36, 3, 42, 3))
sketch2.addConstraint(Sketcher.Constraint("Vertical", 37, 3, 43, 3))
sketch2.addConstraint(Sketcher.Constraint("Vertical", 0, 3, 44, 3))
sketch2.addConstraint(Sketcher.Constraint("Vertical", 44, 3, 45, 3))
sketch2.addConstraint(Sketcher.Constraint("Vertical", 45, 3, 46, 3))
sketch2.addConstraint(Sketcher.Constraint("Vertical", 46, 3, 47, 3))
sketch2.addConstraint(Sketcher.Constraint("Vertical", 47, 3, 48, 3))
sketch2.addConstraint(Sketcher.Constraint("Vertical", 48, 3, 49, 3))
sketch2.addConstraint(Sketcher.Constraint("Vertical", 7, 3, 50, 3))
sketch2.addConstraint(Sketcher.Constraint("Vertical", 50, 3, 51, 3))
sketch2.addConstraint(Sketcher.Constraint("Vertical", 51, 3, 52, 3))
sketch2.addConstraint(Sketcher.Constraint("Vertical", 52, 3, 53, 3))
sketch2.addConstraint(Sketcher.Constraint("Vertical", 53, 3, 54, 3))
sketch2.addConstraint(Sketcher.Constraint("Vertical", 54, 3, 55, 3))
sketch2.addConstraint(Sketcher.Constraint("Diameter", 0, 3.0))
sketch2.addConstraint(Sketcher.Constraint("DistanceX", 0, 3, -1, 1, 16.0))
sketch2.addConstraint(Sketcher.Constraint("DistanceX", -1, 1, 7, 3, 20.0))
sketch2.addConstraint(Sketcher.Constraint("DistanceY", 8, 3, 1, 3, 5.0))
sketch2.addConstraint(Sketcher.Constraint("DistanceY", 14, 3, 8, 3, 5.0))
sketch2.addConstraint(Sketcher.Constraint("DistanceY", 20, 3, 14, 3, 5.0))
sketch2.addConstraint(Sketcher.Constraint("DistanceY", 26, 3, 20, 3, 5.0))
sketch2.addConstraint(Sketcher.Constraint("DistanceY", 32, 3, 26, 3, 5.0))
sketch2.addConstraint(Sketcher.Constraint("DistanceY", 38, 3, 32, 3, 5.0))
sketch2.addConstraint(Sketcher.Constraint("DistanceX", 3, 3, -1, 1, 0.571429))
sketch2.addConstraint(Sketcher.Constraint("DistanceX", -1, 1, 4, 3, 4.571429))
sketch2.addConstraint(Sketcher.Constraint("DistanceX", 1, 3, 4, 3, 15.428571))
sketch2.addConstraint(Sketcher.Constraint("DistanceX", 2, 3, 5, 3, 15.428571))
sketch2.addConstraint(Sketcher.Constraint("DistanceX", 1, 3, 5, 3, 20.571429))
sketch2.addConstraint(Sketcher.Constraint("DistanceX", 3, 3, 6, 3, 15.428571))
sketch2.addConstraint(Sketcher.Constraint("DistanceY", -1, 1, 0, 3, 37.489887))
pocket1 = body.newObject("PartDesign::Pocket", "Pocket")
pocket1.Profile = sketch2
pocket1.Type = "ThroughAll"

# Sketch on XY plane
sketch3 = body.newObject("Sketcher::SketchObject", "Sketch002")
sketch3.AttachmentSupport = (doc.getObject("XY_Plane"), [""])
sketch3.MapMode = "FlatFace"
sketch3.AttachmentOffset = App.Placement(App.Vector(0, 0, 3), App.Rotation())
sketch3.addGeometry(Part.LineSegment(App.Vector(-13, 34, 0), App.Vector(-13, 10, 0)), False)
sketch3.addGeometry(Part.LineSegment(App.Vector(-13, 10, 0), App.Vector(17, 10, 0)), False)
sketch3.addGeometry(Part.LineSegment(App.Vector(17, 10, 0), App.Vector(17, 34, 0)), False)
sketch3.addGeometry(Part.LineSegment(App.Vector(17, 34, 0), App.Vector(-13, 34, 0)), False)
sketch3.addConstraint(Sketcher.Constraint("Coincident", 0, 2, 1, 1))
sketch3.addConstraint(Sketcher.Constraint("Coincident", 1, 2, 2, 1))
sketch3.addConstraint(Sketcher.Constraint("Coincident", 2, 2, 3, 1))
sketch3.addConstraint(Sketcher.Constraint("Coincident", 3, 2, 0, 1))
sketch3.addConstraint(Sketcher.Constraint("Vertical", 0))
sketch3.addConstraint(Sketcher.Constraint("Horizontal", 1))
sketch3.addConstraint(Sketcher.Constraint("Vertical", 2))
sketch3.addConstraint(Sketcher.Constraint("Horizontal", 3))
sketch3.addConstraint(Sketcher.Constraint("DistanceX", 1, 1, 1, 2, 30.0))
sketch3.addConstraint(Sketcher.Constraint("DistanceX", 0, 2, -1, 1, 13.0))
sketch3.addConstraint(Sketcher.Constraint("DistanceY", 0, 2, 0, 1, 24.796786))
sketch3.addConstraint(Sketcher.Constraint("DistanceY", -1, 1, 0, 2, 9.601607))
pocket2 = body.newObject("PartDesign::Pocket", "Pocket001")
pocket2.Profile = sketch3
pocket2.Length = 1.5
doc.recompute()

fillet = body.newObject("PartDesign::Fillet", "Fillet")
fillet.Base = (pocket2, edges_at(pocket2, [(0, -3.563, 1.5)]))
fillet.Radius = 1

doc.recompute()
